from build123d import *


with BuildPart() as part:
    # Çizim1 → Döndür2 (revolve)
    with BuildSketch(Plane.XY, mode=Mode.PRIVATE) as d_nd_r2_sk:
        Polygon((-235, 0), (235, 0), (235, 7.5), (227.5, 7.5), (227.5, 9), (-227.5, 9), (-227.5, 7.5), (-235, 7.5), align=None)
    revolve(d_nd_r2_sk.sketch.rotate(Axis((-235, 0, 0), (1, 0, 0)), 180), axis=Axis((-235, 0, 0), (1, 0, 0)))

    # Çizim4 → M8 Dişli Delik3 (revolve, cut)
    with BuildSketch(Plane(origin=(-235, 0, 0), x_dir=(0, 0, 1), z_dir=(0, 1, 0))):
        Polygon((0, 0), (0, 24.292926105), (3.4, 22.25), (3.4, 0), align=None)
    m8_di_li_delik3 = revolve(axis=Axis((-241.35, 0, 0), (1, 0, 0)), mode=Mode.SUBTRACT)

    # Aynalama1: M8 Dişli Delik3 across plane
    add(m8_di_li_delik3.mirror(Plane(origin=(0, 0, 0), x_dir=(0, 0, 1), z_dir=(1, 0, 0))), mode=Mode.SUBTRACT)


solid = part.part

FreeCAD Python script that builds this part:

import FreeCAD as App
import Part
import Sketcher
from FreeCAD import Vector
Q = App.Units.Quantity

doc = App.newDocument("Part")
body = doc.addObject("PartDesign::Body", "Body")

sketch1 = doc.addObject("Sketcher::SketchObject", "Sketch")
body.addObject(sketch1)
sketch1.AttachmentSupport = (doc.XY_Plane, [""])
sketch1.MapMode = "FlatFace"
sketch1.addGeometry([
    Part.LineSegment(Vector(-235, 0, 0), Vector(235, 0, 0)),
    Part.LineSegment(Vector(235, 0, 0), Vector(235, 7.5, 0)),
    Part.LineSegment(Vector(235, 7.5, 0), Vector(227.5, 7.5, 0)),
    Part.LineSegment(Vector(227.5, 7.5, 0), Vector(227.5, 9, 0)),
    Part.LineSegment(Vector(227.5, 9, 0), Vector(-227.5, 9, 0)),
    Part.LineSegment(Vector(-227.5, 9, 0), Vector(-227.5, 7.5, 0)),
    Part.LineSegment(Vector(-227.5, 7.5, 0), Vector(-235, 7.5, 0)),
    Part.LineSegment(Vector(-235, 7.5, 0), Vector(-235, 0, 0)),
], False)
sketch1.addConstraint([
    Sketcher.Constraint("Coincident", 0, 2, 1, 1),
    Sketcher.Constraint("Coincident", 1, 2, 2, 1),
    Sketcher.Constraint("Coincident", 2, 2, 3, 1),
    Sketcher.Constraint("Coincident", 3, 2, 4, 1),
    Sketcher.Constraint("Coincident", 4, 2, 5, 1),
    Sketcher.Constraint("Coincident", 5, 2, 6, 1),
    Sketcher.Constraint("Coincident", 6, 2, 7, 1),
    Sketcher.Constraint("Coincident", 7, 2, 0, 1),
    Sketcher.Constraint("Horizontal", 0),
    Sketcher.Constraint("Vertical", 1),
    Sketcher.Constraint("Horizontal", 2),
    Sketcher.Constraint("Vertical", 3),
    Sketcher.Constraint("Horizontal", 4),
    Sketcher.Constraint("Vertical", 5),
    Sketcher.Constraint("Horizontal", 6),
    Sketcher.Constraint("Vertical", 7),
    Sketcher.Constraint("Symmetric", 0, 2, 7, 2, -1, 1),
    Sketcher.Constraint("Symmetric", 2, 2, 5, 2, -2),
    Sketcher.Constraint("Equal", 6, 1),
    Sketcher.Constraint("DistanceX", 0, 1, 0, 2, 470.0),
    Sketcher.Constraint("DistanceX", 4, 2, 4, 1, 455.0),
    Sketcher.Constraint("DistanceY", 3, 1, 3, 2, 1.5),
])
revolution = doc.addObject("PartDesign::Revolution", "Revolution")
body.addObject(revolution)
revolution.Profile = sketch1
revolution.ReferenceAxis = (sketch1, ["H_Axis"])
revolution.Angle = 360

sketch2 = doc.addObject("Sketcher::SketchObject", "Sketch001")
body.addObject(sketch2)
sketch2.AttachmentSupport = (doc.XZ_Plane, [""])
sketch2.MapMode = "FlatFace"
sketch2.addGeometry([
    Part.LineSegment(Vector(-210.707074, 0, 0), Vector(-235, 0, 0)),
    Part.LineSegment(Vector(-235, 0, 0), Vector(-235, 3.4, 0)),
    Part.LineSegment(Vector(-235, 3.4, 0), Vector(-212.75, 3.4, 0)),
    Part.LineSegment(Vector(-212.75, 3.4, 0), Vector(-210.707074, 0, 0)),
], False)
sketch2.addConstraint([
    Sketcher.Constraint("Coincident", 0, 2, 1, 1),
    Sketcher.Constraint("Coincident", 1, 2, 2, 1),
    Sketcher.Constraint("Coincident", 2, 2, 3, 1),
    Sketcher.Constraint("Coincident", 3, 2, 0, 1),
    Sketcher.Constraint("Horizontal", 0),
    Sketcher.Constraint("Vertical", 1),
    Sketcher.Constraint("Horizontal", 2),
    Sketcher.Constraint("PointOnObject", 0, 2, -1),
    Sketcher.Constraint("Angle", 3, Q("-59 deg")),
    Sketcher.Constraint("DistanceY", 1, 1, 1, 2, 3.4),
    Sketcher.Constraint("DistanceX", 0, 2, -1, 1, 235.0),
    Sketcher.Constraint("DistanceX", 2, 1, 2, 2, 22.25),
])
groove = doc.addObject("PartDesign::Groove", "Groove")
body.addObject(groove)
groove.Profile = sketch2
groove.ReferenceAxis = (sketch2, ["H_Axis"])
groove.Angle = 360
doc.recompute()

mirrored = doc.addObject("PartDesign::Mirrored", "Mirrored")
body.addObject(mirrored)
mirrored.Originals = [groove]
mirrored.MirrorPlane = (doc.YZ_Plane, [""])
body.Tip = mirrored

doc.recompute()
